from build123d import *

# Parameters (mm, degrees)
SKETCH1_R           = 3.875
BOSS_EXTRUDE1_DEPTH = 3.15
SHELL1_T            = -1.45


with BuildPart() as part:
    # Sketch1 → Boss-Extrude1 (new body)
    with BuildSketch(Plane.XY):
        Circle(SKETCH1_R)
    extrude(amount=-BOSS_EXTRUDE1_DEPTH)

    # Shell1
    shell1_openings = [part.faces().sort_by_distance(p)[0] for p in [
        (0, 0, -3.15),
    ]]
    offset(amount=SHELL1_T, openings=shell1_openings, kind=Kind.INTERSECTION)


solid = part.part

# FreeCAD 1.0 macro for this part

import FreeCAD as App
import Part
import Sketcher
from FreeCAD import Vector
Q = App.Units.Quantity


def faces_at(feature, points):
    """Names of the faces that lie closest to the given points."""
    faces = feature.Shape.Faces
    near = lambda p: min(range(len(faces)), key=lambda i: faces[i].distToShape(Part.Vertex(*p))[0])
    return sorted({f"Face{near(p) + 1}" for p in points})

doc = App.newDocument("Part")
body = doc.addObject("PartDesign::Body", "Body")

# Sketch on XY plane
sketch1 = body.newObject("Sketcher::SketchObject", "Sketch")
sketch1.AttachmentSupport = (doc.getObject("XY_Plane"), [""])
sketch1.MapMode = "FlatFace"
sketch1.addGeometry(Part.Circle(Vector(0, 0, 0), Vector(0, 0, 1), 3.9), False)
sketch1.addConstraint([
    Sketcher.Constraint("Coincident", 0, 3, -1, 1),
    Sketcher.Constraint("Diameter", 0, Q("7.75 mm")),
])
pad1 = body.newObject("PartDesign::Pad", "Pad")
pad1.Profile = sketch1
pad1.Length = 3.15
pad1.Reversed = True
doc.recompute()

thickness = body.newObject("PartDesign::Thickness", "Thickness")
thickness.Base = (pad1, faces_at(pad1, [(0, 0, -3.15)]))
thickness.Value = 1.45
thickness.Reversed = True
thickness.Join = "Intersection"

doc.recompute()
